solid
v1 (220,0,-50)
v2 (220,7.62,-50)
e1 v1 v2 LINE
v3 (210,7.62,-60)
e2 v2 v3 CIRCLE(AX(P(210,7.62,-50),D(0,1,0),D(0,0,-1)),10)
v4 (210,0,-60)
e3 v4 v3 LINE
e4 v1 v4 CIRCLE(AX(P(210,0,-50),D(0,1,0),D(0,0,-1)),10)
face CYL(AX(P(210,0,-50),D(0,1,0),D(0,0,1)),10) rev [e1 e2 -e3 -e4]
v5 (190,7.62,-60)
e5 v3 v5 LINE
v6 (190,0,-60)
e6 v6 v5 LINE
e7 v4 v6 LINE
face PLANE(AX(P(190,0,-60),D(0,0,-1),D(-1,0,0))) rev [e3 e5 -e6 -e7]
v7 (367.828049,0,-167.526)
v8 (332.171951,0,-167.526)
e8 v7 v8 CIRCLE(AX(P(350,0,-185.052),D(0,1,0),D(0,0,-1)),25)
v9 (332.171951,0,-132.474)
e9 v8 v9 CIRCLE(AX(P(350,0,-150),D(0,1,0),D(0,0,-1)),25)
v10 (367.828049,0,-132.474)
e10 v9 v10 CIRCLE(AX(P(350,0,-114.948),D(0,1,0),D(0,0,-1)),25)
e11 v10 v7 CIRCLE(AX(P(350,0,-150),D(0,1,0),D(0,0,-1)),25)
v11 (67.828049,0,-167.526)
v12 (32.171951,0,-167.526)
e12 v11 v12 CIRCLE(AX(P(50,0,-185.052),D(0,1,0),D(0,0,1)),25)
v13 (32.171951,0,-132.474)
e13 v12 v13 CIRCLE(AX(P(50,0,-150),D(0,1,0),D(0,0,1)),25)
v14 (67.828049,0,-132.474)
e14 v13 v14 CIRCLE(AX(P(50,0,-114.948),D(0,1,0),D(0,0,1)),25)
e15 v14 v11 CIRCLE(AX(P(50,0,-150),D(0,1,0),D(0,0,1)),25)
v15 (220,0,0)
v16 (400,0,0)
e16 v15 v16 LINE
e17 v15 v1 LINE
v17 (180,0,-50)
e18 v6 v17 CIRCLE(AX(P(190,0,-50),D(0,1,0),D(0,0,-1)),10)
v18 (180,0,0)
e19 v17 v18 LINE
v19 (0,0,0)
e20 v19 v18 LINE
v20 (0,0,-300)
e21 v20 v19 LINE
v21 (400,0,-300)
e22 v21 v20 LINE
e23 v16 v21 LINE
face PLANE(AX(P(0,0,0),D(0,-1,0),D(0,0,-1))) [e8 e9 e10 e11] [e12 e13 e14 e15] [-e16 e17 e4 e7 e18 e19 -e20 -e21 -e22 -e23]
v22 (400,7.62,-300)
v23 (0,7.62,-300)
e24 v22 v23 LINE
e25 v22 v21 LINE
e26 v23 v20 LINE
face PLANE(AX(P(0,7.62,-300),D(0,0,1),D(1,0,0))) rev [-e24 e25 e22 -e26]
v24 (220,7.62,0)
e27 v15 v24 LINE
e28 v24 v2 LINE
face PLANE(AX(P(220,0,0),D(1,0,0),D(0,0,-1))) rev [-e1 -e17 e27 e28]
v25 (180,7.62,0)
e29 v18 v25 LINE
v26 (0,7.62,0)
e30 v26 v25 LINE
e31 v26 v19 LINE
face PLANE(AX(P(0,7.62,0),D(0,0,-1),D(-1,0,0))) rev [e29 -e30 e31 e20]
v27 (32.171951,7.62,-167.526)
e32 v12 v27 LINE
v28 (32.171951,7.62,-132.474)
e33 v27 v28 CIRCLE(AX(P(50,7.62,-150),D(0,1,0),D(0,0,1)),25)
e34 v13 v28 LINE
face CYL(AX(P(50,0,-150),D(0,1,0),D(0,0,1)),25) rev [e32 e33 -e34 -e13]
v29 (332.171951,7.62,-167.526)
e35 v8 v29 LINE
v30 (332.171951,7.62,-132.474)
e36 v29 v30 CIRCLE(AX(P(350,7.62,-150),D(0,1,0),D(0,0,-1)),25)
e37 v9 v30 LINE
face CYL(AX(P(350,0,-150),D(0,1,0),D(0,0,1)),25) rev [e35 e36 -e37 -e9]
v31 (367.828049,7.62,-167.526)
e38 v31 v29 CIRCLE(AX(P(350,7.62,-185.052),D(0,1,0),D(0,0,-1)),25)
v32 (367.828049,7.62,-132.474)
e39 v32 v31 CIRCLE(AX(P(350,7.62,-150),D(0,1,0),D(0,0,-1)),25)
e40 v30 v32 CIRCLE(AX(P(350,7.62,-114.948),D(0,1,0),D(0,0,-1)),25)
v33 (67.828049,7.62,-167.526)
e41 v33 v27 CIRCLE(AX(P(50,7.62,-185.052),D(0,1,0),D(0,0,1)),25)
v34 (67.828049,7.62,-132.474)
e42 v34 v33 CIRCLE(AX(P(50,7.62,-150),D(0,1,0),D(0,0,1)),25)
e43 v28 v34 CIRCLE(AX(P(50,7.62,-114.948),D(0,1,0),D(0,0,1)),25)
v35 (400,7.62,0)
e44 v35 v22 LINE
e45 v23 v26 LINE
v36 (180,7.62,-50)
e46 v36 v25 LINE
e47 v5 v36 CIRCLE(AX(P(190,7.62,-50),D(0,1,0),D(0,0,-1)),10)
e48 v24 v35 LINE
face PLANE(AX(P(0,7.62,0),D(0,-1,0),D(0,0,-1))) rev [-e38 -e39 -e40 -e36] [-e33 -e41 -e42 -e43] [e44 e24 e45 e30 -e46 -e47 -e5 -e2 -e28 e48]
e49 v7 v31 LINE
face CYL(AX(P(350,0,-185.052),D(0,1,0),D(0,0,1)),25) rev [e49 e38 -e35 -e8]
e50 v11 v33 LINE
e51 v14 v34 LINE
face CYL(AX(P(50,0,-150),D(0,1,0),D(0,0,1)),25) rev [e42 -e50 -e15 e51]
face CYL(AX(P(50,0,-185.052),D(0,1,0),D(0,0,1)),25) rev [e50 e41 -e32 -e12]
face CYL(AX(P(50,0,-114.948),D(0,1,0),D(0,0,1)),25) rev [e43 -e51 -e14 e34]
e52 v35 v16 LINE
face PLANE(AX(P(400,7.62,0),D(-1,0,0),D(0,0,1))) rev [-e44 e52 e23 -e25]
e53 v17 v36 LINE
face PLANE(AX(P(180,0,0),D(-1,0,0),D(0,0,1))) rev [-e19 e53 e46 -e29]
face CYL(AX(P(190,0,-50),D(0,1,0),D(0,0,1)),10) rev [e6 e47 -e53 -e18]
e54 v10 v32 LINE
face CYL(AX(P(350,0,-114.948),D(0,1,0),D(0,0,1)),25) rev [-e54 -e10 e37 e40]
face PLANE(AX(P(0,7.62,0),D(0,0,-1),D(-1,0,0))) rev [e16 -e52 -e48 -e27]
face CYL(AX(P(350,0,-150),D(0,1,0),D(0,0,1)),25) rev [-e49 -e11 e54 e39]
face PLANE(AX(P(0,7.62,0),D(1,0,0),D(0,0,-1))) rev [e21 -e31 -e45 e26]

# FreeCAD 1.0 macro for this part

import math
import FreeCAD as App
import Part
import Sketcher
from FreeCAD import Vector
Q = App.Units.Quantity

doc = App.newDocument("Part")
params = doc.addObject("Spreadsheet::Sheet", "Params")
for row, (alias, value) in enumerate([
    ("sketch1_width", "400 mm"),
    ("sketch1_height", "300 mm"),
    ("pad1_length", "7.62 mm"),
    ("sketch2_radius", "25 mm"),
    ("pocket1_length", "7.62 mm"),
    ("sketch3_radius", "10 mm"),
    ("sketch3_width", "40 mm"),
    ("sketch3_height", "50 mm"),
    ("pocket2_length", "7.62 mm"),
], start=1):
    params.set(f"A{row}", alias)
    params.set(f"B{row}", "=" + value)
    params.setAlias(f"B{row}", alias)

body = doc.addObject("PartDesign::Body", "Body")

# Sketch on XZ plane
sketch1 = doc.addObject("Sketcher::SketchObject", "Sketch")
body.addObject(sketch1)
sketch1.AttachmentSupport = (doc.XZ_Plane, [""])
sketch1.MapMode = "FlatFace"
sketch1.addGeometry(Part.LineSegment(Vector(0, -300, 0), Vector(0, 0, 0)), False)
sketch1.addGeometry(Part.LineSegment(Vector(0, 0, 0), Vector(400, 0, 0)), False)
sketch1.addGeometry(Part.LineSegment(Vector(400, 0, 0), Vector(400, -300, 0)), False)
sketch1.addGeometry(Part.LineSegment(Vector(400, -300, 0), Vector(0, -300, 0)), False)
sketch1.addConstraint(Sketcher.Constraint("Coincident", 0, 2, 1, 1))
sketch1.addConstraint(Sketcher.Constraint("Coincident", 1, 2, 2, 1))
sketch1.addConstraint(Sketcher.Constraint("Coincident", 2, 2, 3, 1))
sketch1.addConstraint(Sketcher.Constraint("Coincident", 3, 2, 0, 1))
sketch1.addConstraint(Sketcher.Constraint("Vertical", 0))
sketch1.addConstraint(Sketcher.Constraint("Horizontal", 1))
sketch1.addConstraint(Sketcher.Constraint("Vertical", 2))
sketch1.addConstraint(Sketcher.Constraint("Horizontal", 3))
sketch1.addConstraint(Sketcher.Constraint("Coincident", 0, 2, -1, 1))
sketch1.addConstraint(Sketcher.Constraint("DistanceX", 1, 1, 1, 2, Q("400 mm")))
sketch1.addConstraint(Sketcher.Constraint("DistanceY", 0, 1, 0, 2, Q("300 mm")))
sketch1.setExpression("Constraints[9]", "Params.sketch1_width")
sketch1.setExpression("Constraints[10]", "Params.sketch1_height")
pad1 = doc.addObject("PartDesign::Pad", "Pad")
body.addObject(pad1)
pad1.Profile = sketch1
pad1.setExpression("Length", "Params.pad1_length")
pad1.Reversed = True

# Sketch on XZ plane
sketch2 = doc.addObject("Sketcher::SketchObject", "Sketch001")
body.addObject(sketch2)
sketch2.AttachmentSupport = (doc.XZ_Plane, [""])
sketch2.MapMode = "FlatFace"
sketch2.AttachmentOffset = App.Placement(Vector(0, 0, -7.62), App.Rotation())
sketch2.addGeometry(Part.ArcOfCircle(Part.Circle(Vector(50, -150, 0), Vector(0, 0, 1), 25), math.radians(135.489497), math.radians(224.510503)), False)
sketch2.addGeometry(Part.ArcOfCircle(Part.Circle(Vector(50, -114.948, 0), Vector(0, 0, 1), 25), math.radians(-44.510503), math.radians(224.510503)), False)
sketch2.addGeometry(Part.ArcOfCircle(Part.Circle(Vector(50, -150, 0), Vector(0, 0, 1), 25), math.radians(-44.510503), math.radians(44.510503)), False)
sketch2.addGeometry(Part.ArcOfCircle(Part.Circle(Vector(50, -185.052, 0), Vector(0, 0, 1), 25), math.radians(135.489497), math.radians(404.510503)), False)
sketch2.addGeometry(Part.ArcOfCircle(Part.Circle(Vector(350, -150, 0), Vector(0, 0, 1), 25), math.radians(-44.510503), math.radians(44.510503)), False)
sketch2.addGeometry(Part.ArcOfCircle(Part.Circle(Vector(350, -185.052, 0), Vector(0, 0, 1), 25), math.radians(135.489497), math.radians(404.510503)), False)
sketch2.addGeometry(Part.ArcOfCircle(Part.Circle(Vector(350, -150, 0), Vector(0, 0, 1), 25), math.radians(135.489497), math.radians(224.510503)), False)
sketch2.addGeometry(Part.ArcOfCircle(Part.Circle(Vector(350, -114.948, 0), Vector(0, 0, 1), 25), math.radians(-44.510503), math.radians(224.510503)), False)
sketch2.addConstraint(Sketcher.Constraint("Coincident", 0, 1, 1, 2))
sketch2.addConstraint(Sketcher.Constraint("Coincident", 1, 1, 2, 2))
sketch2.addConstraint(Sketcher.Constraint("Coincident", 2, 1, 3, 2))
sketch2.addConstraint(Sketcher.Constraint("Coincident", 3, 1, 0, 2))
sketch2.addConstraint(Sketcher.Constraint("Coincident", 4, 1, 5, 2))
sketch2.addConstraint(Sketcher.Constraint("Coincident", 5, 1, 6, 2))
sketch2.addConstraint(Sketcher.Constraint("Coincident", 6, 1, 7, 2))
sketch2.addConstraint(Sketcher.Constraint("Coincident", 7, 1, 4, 2))
sketch2.addConstraint(Sketcher.Constraint("Coincident", 2, 3, 0, 3))
sketch2.addConstraint(Sketcher.Constraint("Coincident", 6, 3, 4, 3))
sketch2.addConstraint(Sketcher.Constraint("Equal", 0, 1))
sketch2.addConstraint(Sketcher.Constraint("Equal", 1, 2))
sketch2.addConstraint(Sketcher.Constraint("Equal", 2, 3))
sketch2.addConstraint(Sketcher.Constraint("Equal", 3, 4))
sketch2.addConstraint(Sketcher.Constraint("Equal", 4, 5))
sketch2.addConstraint(Sketcher.Constraint("Equal", 5, 6))
sketch2.addConstraint(Sketcher.Constraint("Equal", 6, 7))
sketch2.addConstraint(Sketcher.Constraint("Horizontal", 2, 3, 4, 3))
sketch2.addConstraint(Sketcher.Constraint("Horizontal", 3, 3, 5, 3))
sketch2.addConstraint(Sketcher.Constraint("Horizontal", 1, 3, 7, 3))
sketch2.addConstraint(Sketcher.Constraint("Horizontal", 0, 1, 1, 1))
sketch2.addConstraint(Sketcher.Constraint("Horizontal", 2, 1, 3, 1))
sketch2.addConstraint(Sketcher.Constraint("Horizontal", 3, 1, 4, 1))
sketch2.addConstraint(Sketcher.Constraint("Horizontal", 1, 1, 6, 1))
sketch2.addConstraint(Sketcher.Constraint("Vertical", 1, 1, 2, 1))
sketch2.addConstraint(Sketcher.Constraint("Radius", 0, Q("25 mm")))
sketch2.addConstraint(Sketcher.Constraint("DistanceX", -1, 1, 0, 3, Q("50 mm")))
sketch2.addConstraint(Sketcher.Constraint("DistanceY", 0, 3, -1, 1, Q("150 mm")))
sketch2.addConstraint(Sketcher.Constraint("DistanceX", -1, 1, 4, 3, Q("350 mm")))
sketch2.addConstraint(Sketcher.Constraint("DistanceY", 1, 3, -1, 1, Q("114.948 mm")))
sketch2.setExpression("Constraints[25]", "Params.sketch2_radius")
pocket1 = doc.addObject("PartDesign::Pocket", "Pocket")
body.addObject(pocket1)
pocket1.Profile = sketch2
pocket1.setExpression("Length", "Params.pocket1_length")
pocket1.Reversed = True

# Sketch on XZ plane
sketch3 = doc.addObject("Sketcher::SketchObject", "Sketch002")
body.addObject(sketch3)
sketch3.AttachmentSupport = (doc.XZ_Plane, [""])
sketch3.MapMode = "FlatFace"
sketch3.AttachmentOffset = App.Placement(Vector(0, 0, -7.62), App.Rotation())
sketch3.addGeometry(Part.LineSegment(Vector(180, 0, 0), Vector(220, 0, 0)), False)
sketch3.addGeometry(Part.LineSegment(Vector(220, 0, 0), Vector(220, -50, 0)), False)
sketch3.addGeometry(Part.ArcOfCircle(Part.Circle(Vector(210, -50, 0), Vector(0, 0, 1), 10), math.radians(-90), math.radians(0)), False)
sketch3.addGeometry(Part.LineSegment(Vector(210, -60, 0), Vector(190, -60, 0)), False)
sketch3.addGeometry(Part.ArcOfCircle(Part.Circle(Vector(190, -50, 0), Vector(0, 0, 1), 10), math.radians(180), math.radians(270)), False)
sketch3.addGeometry(Part.LineSegment(Vector(180, -50, 0), Vector(180, 0, 0)), False)
sketch3.addConstraint(Sketcher.Constraint("Coincident", 0, 2, 1, 1))
sketch3.addConstraint(Sketcher.Constraint("Tangent", 1, 2, 2, 2))
sketch3.addConstraint(Sketcher.Constraint("Tangent", 2, 1, 3, 1))
sketch3.addConstraint(Sketcher.Constraint("Tangent", 3, 2, 4, 2))
sketch3.addConstraint(Sketcher.Constraint("Tangent", 4, 1, 5, 1))
sketch3.addConstraint(Sketcher.Constraint("Coincident", 5, 2, 0, 1))
sketch3.addConstraint(Sketcher.Constraint("Horizontal", 0))
sketch3.addConstraint(Sketcher.Constraint("Vertical", 1))
sketch3.addConstraint(Sketcher.Constraint("Horizontal", 3))
sketch3.addConstraint(Sketcher.Constraint("Vertical", 5))
sketch3.addConstraint(Sketcher.Constraint("Equal", 2, 4))
sketch3.addConstraint(Sketcher.Constraint("PointOnObject", 0, 2, -1))
sketch3.addConstraint(Sketcher.Constraint("Radius", 2, Q("10 mm")))
sketch3.addConstraint(Sketcher.Constraint("DistanceX", 0, 1, 0, 2, Q("40 mm")))
sketch3.addConstraint(Sketcher.Constraint("DistanceY", 1, 2, 1, 1, Q("50 mm")))
sketch3.addConstraint(Sketcher.Constraint("DistanceX", -1, 1, 2, 3, Q("210 mm")))
sketch3.setExpression("Constraints[12]", "Params.sketch3_radius")
sketch3.setExpression("Constraints[13]", "Params.sketch3_width")
sketch3.setExpression("Constraints[14]", "Params.sketch3_height")
pocket2 = doc.addObject("PartDesign::Pocket", "Pocket001")
body.addObject(pocket2)
pocket2.Profile = sketch3
pocket2.setExpression("Length", "Params.pocket2_length")
pocket2.Reversed = True

doc.recompute()
